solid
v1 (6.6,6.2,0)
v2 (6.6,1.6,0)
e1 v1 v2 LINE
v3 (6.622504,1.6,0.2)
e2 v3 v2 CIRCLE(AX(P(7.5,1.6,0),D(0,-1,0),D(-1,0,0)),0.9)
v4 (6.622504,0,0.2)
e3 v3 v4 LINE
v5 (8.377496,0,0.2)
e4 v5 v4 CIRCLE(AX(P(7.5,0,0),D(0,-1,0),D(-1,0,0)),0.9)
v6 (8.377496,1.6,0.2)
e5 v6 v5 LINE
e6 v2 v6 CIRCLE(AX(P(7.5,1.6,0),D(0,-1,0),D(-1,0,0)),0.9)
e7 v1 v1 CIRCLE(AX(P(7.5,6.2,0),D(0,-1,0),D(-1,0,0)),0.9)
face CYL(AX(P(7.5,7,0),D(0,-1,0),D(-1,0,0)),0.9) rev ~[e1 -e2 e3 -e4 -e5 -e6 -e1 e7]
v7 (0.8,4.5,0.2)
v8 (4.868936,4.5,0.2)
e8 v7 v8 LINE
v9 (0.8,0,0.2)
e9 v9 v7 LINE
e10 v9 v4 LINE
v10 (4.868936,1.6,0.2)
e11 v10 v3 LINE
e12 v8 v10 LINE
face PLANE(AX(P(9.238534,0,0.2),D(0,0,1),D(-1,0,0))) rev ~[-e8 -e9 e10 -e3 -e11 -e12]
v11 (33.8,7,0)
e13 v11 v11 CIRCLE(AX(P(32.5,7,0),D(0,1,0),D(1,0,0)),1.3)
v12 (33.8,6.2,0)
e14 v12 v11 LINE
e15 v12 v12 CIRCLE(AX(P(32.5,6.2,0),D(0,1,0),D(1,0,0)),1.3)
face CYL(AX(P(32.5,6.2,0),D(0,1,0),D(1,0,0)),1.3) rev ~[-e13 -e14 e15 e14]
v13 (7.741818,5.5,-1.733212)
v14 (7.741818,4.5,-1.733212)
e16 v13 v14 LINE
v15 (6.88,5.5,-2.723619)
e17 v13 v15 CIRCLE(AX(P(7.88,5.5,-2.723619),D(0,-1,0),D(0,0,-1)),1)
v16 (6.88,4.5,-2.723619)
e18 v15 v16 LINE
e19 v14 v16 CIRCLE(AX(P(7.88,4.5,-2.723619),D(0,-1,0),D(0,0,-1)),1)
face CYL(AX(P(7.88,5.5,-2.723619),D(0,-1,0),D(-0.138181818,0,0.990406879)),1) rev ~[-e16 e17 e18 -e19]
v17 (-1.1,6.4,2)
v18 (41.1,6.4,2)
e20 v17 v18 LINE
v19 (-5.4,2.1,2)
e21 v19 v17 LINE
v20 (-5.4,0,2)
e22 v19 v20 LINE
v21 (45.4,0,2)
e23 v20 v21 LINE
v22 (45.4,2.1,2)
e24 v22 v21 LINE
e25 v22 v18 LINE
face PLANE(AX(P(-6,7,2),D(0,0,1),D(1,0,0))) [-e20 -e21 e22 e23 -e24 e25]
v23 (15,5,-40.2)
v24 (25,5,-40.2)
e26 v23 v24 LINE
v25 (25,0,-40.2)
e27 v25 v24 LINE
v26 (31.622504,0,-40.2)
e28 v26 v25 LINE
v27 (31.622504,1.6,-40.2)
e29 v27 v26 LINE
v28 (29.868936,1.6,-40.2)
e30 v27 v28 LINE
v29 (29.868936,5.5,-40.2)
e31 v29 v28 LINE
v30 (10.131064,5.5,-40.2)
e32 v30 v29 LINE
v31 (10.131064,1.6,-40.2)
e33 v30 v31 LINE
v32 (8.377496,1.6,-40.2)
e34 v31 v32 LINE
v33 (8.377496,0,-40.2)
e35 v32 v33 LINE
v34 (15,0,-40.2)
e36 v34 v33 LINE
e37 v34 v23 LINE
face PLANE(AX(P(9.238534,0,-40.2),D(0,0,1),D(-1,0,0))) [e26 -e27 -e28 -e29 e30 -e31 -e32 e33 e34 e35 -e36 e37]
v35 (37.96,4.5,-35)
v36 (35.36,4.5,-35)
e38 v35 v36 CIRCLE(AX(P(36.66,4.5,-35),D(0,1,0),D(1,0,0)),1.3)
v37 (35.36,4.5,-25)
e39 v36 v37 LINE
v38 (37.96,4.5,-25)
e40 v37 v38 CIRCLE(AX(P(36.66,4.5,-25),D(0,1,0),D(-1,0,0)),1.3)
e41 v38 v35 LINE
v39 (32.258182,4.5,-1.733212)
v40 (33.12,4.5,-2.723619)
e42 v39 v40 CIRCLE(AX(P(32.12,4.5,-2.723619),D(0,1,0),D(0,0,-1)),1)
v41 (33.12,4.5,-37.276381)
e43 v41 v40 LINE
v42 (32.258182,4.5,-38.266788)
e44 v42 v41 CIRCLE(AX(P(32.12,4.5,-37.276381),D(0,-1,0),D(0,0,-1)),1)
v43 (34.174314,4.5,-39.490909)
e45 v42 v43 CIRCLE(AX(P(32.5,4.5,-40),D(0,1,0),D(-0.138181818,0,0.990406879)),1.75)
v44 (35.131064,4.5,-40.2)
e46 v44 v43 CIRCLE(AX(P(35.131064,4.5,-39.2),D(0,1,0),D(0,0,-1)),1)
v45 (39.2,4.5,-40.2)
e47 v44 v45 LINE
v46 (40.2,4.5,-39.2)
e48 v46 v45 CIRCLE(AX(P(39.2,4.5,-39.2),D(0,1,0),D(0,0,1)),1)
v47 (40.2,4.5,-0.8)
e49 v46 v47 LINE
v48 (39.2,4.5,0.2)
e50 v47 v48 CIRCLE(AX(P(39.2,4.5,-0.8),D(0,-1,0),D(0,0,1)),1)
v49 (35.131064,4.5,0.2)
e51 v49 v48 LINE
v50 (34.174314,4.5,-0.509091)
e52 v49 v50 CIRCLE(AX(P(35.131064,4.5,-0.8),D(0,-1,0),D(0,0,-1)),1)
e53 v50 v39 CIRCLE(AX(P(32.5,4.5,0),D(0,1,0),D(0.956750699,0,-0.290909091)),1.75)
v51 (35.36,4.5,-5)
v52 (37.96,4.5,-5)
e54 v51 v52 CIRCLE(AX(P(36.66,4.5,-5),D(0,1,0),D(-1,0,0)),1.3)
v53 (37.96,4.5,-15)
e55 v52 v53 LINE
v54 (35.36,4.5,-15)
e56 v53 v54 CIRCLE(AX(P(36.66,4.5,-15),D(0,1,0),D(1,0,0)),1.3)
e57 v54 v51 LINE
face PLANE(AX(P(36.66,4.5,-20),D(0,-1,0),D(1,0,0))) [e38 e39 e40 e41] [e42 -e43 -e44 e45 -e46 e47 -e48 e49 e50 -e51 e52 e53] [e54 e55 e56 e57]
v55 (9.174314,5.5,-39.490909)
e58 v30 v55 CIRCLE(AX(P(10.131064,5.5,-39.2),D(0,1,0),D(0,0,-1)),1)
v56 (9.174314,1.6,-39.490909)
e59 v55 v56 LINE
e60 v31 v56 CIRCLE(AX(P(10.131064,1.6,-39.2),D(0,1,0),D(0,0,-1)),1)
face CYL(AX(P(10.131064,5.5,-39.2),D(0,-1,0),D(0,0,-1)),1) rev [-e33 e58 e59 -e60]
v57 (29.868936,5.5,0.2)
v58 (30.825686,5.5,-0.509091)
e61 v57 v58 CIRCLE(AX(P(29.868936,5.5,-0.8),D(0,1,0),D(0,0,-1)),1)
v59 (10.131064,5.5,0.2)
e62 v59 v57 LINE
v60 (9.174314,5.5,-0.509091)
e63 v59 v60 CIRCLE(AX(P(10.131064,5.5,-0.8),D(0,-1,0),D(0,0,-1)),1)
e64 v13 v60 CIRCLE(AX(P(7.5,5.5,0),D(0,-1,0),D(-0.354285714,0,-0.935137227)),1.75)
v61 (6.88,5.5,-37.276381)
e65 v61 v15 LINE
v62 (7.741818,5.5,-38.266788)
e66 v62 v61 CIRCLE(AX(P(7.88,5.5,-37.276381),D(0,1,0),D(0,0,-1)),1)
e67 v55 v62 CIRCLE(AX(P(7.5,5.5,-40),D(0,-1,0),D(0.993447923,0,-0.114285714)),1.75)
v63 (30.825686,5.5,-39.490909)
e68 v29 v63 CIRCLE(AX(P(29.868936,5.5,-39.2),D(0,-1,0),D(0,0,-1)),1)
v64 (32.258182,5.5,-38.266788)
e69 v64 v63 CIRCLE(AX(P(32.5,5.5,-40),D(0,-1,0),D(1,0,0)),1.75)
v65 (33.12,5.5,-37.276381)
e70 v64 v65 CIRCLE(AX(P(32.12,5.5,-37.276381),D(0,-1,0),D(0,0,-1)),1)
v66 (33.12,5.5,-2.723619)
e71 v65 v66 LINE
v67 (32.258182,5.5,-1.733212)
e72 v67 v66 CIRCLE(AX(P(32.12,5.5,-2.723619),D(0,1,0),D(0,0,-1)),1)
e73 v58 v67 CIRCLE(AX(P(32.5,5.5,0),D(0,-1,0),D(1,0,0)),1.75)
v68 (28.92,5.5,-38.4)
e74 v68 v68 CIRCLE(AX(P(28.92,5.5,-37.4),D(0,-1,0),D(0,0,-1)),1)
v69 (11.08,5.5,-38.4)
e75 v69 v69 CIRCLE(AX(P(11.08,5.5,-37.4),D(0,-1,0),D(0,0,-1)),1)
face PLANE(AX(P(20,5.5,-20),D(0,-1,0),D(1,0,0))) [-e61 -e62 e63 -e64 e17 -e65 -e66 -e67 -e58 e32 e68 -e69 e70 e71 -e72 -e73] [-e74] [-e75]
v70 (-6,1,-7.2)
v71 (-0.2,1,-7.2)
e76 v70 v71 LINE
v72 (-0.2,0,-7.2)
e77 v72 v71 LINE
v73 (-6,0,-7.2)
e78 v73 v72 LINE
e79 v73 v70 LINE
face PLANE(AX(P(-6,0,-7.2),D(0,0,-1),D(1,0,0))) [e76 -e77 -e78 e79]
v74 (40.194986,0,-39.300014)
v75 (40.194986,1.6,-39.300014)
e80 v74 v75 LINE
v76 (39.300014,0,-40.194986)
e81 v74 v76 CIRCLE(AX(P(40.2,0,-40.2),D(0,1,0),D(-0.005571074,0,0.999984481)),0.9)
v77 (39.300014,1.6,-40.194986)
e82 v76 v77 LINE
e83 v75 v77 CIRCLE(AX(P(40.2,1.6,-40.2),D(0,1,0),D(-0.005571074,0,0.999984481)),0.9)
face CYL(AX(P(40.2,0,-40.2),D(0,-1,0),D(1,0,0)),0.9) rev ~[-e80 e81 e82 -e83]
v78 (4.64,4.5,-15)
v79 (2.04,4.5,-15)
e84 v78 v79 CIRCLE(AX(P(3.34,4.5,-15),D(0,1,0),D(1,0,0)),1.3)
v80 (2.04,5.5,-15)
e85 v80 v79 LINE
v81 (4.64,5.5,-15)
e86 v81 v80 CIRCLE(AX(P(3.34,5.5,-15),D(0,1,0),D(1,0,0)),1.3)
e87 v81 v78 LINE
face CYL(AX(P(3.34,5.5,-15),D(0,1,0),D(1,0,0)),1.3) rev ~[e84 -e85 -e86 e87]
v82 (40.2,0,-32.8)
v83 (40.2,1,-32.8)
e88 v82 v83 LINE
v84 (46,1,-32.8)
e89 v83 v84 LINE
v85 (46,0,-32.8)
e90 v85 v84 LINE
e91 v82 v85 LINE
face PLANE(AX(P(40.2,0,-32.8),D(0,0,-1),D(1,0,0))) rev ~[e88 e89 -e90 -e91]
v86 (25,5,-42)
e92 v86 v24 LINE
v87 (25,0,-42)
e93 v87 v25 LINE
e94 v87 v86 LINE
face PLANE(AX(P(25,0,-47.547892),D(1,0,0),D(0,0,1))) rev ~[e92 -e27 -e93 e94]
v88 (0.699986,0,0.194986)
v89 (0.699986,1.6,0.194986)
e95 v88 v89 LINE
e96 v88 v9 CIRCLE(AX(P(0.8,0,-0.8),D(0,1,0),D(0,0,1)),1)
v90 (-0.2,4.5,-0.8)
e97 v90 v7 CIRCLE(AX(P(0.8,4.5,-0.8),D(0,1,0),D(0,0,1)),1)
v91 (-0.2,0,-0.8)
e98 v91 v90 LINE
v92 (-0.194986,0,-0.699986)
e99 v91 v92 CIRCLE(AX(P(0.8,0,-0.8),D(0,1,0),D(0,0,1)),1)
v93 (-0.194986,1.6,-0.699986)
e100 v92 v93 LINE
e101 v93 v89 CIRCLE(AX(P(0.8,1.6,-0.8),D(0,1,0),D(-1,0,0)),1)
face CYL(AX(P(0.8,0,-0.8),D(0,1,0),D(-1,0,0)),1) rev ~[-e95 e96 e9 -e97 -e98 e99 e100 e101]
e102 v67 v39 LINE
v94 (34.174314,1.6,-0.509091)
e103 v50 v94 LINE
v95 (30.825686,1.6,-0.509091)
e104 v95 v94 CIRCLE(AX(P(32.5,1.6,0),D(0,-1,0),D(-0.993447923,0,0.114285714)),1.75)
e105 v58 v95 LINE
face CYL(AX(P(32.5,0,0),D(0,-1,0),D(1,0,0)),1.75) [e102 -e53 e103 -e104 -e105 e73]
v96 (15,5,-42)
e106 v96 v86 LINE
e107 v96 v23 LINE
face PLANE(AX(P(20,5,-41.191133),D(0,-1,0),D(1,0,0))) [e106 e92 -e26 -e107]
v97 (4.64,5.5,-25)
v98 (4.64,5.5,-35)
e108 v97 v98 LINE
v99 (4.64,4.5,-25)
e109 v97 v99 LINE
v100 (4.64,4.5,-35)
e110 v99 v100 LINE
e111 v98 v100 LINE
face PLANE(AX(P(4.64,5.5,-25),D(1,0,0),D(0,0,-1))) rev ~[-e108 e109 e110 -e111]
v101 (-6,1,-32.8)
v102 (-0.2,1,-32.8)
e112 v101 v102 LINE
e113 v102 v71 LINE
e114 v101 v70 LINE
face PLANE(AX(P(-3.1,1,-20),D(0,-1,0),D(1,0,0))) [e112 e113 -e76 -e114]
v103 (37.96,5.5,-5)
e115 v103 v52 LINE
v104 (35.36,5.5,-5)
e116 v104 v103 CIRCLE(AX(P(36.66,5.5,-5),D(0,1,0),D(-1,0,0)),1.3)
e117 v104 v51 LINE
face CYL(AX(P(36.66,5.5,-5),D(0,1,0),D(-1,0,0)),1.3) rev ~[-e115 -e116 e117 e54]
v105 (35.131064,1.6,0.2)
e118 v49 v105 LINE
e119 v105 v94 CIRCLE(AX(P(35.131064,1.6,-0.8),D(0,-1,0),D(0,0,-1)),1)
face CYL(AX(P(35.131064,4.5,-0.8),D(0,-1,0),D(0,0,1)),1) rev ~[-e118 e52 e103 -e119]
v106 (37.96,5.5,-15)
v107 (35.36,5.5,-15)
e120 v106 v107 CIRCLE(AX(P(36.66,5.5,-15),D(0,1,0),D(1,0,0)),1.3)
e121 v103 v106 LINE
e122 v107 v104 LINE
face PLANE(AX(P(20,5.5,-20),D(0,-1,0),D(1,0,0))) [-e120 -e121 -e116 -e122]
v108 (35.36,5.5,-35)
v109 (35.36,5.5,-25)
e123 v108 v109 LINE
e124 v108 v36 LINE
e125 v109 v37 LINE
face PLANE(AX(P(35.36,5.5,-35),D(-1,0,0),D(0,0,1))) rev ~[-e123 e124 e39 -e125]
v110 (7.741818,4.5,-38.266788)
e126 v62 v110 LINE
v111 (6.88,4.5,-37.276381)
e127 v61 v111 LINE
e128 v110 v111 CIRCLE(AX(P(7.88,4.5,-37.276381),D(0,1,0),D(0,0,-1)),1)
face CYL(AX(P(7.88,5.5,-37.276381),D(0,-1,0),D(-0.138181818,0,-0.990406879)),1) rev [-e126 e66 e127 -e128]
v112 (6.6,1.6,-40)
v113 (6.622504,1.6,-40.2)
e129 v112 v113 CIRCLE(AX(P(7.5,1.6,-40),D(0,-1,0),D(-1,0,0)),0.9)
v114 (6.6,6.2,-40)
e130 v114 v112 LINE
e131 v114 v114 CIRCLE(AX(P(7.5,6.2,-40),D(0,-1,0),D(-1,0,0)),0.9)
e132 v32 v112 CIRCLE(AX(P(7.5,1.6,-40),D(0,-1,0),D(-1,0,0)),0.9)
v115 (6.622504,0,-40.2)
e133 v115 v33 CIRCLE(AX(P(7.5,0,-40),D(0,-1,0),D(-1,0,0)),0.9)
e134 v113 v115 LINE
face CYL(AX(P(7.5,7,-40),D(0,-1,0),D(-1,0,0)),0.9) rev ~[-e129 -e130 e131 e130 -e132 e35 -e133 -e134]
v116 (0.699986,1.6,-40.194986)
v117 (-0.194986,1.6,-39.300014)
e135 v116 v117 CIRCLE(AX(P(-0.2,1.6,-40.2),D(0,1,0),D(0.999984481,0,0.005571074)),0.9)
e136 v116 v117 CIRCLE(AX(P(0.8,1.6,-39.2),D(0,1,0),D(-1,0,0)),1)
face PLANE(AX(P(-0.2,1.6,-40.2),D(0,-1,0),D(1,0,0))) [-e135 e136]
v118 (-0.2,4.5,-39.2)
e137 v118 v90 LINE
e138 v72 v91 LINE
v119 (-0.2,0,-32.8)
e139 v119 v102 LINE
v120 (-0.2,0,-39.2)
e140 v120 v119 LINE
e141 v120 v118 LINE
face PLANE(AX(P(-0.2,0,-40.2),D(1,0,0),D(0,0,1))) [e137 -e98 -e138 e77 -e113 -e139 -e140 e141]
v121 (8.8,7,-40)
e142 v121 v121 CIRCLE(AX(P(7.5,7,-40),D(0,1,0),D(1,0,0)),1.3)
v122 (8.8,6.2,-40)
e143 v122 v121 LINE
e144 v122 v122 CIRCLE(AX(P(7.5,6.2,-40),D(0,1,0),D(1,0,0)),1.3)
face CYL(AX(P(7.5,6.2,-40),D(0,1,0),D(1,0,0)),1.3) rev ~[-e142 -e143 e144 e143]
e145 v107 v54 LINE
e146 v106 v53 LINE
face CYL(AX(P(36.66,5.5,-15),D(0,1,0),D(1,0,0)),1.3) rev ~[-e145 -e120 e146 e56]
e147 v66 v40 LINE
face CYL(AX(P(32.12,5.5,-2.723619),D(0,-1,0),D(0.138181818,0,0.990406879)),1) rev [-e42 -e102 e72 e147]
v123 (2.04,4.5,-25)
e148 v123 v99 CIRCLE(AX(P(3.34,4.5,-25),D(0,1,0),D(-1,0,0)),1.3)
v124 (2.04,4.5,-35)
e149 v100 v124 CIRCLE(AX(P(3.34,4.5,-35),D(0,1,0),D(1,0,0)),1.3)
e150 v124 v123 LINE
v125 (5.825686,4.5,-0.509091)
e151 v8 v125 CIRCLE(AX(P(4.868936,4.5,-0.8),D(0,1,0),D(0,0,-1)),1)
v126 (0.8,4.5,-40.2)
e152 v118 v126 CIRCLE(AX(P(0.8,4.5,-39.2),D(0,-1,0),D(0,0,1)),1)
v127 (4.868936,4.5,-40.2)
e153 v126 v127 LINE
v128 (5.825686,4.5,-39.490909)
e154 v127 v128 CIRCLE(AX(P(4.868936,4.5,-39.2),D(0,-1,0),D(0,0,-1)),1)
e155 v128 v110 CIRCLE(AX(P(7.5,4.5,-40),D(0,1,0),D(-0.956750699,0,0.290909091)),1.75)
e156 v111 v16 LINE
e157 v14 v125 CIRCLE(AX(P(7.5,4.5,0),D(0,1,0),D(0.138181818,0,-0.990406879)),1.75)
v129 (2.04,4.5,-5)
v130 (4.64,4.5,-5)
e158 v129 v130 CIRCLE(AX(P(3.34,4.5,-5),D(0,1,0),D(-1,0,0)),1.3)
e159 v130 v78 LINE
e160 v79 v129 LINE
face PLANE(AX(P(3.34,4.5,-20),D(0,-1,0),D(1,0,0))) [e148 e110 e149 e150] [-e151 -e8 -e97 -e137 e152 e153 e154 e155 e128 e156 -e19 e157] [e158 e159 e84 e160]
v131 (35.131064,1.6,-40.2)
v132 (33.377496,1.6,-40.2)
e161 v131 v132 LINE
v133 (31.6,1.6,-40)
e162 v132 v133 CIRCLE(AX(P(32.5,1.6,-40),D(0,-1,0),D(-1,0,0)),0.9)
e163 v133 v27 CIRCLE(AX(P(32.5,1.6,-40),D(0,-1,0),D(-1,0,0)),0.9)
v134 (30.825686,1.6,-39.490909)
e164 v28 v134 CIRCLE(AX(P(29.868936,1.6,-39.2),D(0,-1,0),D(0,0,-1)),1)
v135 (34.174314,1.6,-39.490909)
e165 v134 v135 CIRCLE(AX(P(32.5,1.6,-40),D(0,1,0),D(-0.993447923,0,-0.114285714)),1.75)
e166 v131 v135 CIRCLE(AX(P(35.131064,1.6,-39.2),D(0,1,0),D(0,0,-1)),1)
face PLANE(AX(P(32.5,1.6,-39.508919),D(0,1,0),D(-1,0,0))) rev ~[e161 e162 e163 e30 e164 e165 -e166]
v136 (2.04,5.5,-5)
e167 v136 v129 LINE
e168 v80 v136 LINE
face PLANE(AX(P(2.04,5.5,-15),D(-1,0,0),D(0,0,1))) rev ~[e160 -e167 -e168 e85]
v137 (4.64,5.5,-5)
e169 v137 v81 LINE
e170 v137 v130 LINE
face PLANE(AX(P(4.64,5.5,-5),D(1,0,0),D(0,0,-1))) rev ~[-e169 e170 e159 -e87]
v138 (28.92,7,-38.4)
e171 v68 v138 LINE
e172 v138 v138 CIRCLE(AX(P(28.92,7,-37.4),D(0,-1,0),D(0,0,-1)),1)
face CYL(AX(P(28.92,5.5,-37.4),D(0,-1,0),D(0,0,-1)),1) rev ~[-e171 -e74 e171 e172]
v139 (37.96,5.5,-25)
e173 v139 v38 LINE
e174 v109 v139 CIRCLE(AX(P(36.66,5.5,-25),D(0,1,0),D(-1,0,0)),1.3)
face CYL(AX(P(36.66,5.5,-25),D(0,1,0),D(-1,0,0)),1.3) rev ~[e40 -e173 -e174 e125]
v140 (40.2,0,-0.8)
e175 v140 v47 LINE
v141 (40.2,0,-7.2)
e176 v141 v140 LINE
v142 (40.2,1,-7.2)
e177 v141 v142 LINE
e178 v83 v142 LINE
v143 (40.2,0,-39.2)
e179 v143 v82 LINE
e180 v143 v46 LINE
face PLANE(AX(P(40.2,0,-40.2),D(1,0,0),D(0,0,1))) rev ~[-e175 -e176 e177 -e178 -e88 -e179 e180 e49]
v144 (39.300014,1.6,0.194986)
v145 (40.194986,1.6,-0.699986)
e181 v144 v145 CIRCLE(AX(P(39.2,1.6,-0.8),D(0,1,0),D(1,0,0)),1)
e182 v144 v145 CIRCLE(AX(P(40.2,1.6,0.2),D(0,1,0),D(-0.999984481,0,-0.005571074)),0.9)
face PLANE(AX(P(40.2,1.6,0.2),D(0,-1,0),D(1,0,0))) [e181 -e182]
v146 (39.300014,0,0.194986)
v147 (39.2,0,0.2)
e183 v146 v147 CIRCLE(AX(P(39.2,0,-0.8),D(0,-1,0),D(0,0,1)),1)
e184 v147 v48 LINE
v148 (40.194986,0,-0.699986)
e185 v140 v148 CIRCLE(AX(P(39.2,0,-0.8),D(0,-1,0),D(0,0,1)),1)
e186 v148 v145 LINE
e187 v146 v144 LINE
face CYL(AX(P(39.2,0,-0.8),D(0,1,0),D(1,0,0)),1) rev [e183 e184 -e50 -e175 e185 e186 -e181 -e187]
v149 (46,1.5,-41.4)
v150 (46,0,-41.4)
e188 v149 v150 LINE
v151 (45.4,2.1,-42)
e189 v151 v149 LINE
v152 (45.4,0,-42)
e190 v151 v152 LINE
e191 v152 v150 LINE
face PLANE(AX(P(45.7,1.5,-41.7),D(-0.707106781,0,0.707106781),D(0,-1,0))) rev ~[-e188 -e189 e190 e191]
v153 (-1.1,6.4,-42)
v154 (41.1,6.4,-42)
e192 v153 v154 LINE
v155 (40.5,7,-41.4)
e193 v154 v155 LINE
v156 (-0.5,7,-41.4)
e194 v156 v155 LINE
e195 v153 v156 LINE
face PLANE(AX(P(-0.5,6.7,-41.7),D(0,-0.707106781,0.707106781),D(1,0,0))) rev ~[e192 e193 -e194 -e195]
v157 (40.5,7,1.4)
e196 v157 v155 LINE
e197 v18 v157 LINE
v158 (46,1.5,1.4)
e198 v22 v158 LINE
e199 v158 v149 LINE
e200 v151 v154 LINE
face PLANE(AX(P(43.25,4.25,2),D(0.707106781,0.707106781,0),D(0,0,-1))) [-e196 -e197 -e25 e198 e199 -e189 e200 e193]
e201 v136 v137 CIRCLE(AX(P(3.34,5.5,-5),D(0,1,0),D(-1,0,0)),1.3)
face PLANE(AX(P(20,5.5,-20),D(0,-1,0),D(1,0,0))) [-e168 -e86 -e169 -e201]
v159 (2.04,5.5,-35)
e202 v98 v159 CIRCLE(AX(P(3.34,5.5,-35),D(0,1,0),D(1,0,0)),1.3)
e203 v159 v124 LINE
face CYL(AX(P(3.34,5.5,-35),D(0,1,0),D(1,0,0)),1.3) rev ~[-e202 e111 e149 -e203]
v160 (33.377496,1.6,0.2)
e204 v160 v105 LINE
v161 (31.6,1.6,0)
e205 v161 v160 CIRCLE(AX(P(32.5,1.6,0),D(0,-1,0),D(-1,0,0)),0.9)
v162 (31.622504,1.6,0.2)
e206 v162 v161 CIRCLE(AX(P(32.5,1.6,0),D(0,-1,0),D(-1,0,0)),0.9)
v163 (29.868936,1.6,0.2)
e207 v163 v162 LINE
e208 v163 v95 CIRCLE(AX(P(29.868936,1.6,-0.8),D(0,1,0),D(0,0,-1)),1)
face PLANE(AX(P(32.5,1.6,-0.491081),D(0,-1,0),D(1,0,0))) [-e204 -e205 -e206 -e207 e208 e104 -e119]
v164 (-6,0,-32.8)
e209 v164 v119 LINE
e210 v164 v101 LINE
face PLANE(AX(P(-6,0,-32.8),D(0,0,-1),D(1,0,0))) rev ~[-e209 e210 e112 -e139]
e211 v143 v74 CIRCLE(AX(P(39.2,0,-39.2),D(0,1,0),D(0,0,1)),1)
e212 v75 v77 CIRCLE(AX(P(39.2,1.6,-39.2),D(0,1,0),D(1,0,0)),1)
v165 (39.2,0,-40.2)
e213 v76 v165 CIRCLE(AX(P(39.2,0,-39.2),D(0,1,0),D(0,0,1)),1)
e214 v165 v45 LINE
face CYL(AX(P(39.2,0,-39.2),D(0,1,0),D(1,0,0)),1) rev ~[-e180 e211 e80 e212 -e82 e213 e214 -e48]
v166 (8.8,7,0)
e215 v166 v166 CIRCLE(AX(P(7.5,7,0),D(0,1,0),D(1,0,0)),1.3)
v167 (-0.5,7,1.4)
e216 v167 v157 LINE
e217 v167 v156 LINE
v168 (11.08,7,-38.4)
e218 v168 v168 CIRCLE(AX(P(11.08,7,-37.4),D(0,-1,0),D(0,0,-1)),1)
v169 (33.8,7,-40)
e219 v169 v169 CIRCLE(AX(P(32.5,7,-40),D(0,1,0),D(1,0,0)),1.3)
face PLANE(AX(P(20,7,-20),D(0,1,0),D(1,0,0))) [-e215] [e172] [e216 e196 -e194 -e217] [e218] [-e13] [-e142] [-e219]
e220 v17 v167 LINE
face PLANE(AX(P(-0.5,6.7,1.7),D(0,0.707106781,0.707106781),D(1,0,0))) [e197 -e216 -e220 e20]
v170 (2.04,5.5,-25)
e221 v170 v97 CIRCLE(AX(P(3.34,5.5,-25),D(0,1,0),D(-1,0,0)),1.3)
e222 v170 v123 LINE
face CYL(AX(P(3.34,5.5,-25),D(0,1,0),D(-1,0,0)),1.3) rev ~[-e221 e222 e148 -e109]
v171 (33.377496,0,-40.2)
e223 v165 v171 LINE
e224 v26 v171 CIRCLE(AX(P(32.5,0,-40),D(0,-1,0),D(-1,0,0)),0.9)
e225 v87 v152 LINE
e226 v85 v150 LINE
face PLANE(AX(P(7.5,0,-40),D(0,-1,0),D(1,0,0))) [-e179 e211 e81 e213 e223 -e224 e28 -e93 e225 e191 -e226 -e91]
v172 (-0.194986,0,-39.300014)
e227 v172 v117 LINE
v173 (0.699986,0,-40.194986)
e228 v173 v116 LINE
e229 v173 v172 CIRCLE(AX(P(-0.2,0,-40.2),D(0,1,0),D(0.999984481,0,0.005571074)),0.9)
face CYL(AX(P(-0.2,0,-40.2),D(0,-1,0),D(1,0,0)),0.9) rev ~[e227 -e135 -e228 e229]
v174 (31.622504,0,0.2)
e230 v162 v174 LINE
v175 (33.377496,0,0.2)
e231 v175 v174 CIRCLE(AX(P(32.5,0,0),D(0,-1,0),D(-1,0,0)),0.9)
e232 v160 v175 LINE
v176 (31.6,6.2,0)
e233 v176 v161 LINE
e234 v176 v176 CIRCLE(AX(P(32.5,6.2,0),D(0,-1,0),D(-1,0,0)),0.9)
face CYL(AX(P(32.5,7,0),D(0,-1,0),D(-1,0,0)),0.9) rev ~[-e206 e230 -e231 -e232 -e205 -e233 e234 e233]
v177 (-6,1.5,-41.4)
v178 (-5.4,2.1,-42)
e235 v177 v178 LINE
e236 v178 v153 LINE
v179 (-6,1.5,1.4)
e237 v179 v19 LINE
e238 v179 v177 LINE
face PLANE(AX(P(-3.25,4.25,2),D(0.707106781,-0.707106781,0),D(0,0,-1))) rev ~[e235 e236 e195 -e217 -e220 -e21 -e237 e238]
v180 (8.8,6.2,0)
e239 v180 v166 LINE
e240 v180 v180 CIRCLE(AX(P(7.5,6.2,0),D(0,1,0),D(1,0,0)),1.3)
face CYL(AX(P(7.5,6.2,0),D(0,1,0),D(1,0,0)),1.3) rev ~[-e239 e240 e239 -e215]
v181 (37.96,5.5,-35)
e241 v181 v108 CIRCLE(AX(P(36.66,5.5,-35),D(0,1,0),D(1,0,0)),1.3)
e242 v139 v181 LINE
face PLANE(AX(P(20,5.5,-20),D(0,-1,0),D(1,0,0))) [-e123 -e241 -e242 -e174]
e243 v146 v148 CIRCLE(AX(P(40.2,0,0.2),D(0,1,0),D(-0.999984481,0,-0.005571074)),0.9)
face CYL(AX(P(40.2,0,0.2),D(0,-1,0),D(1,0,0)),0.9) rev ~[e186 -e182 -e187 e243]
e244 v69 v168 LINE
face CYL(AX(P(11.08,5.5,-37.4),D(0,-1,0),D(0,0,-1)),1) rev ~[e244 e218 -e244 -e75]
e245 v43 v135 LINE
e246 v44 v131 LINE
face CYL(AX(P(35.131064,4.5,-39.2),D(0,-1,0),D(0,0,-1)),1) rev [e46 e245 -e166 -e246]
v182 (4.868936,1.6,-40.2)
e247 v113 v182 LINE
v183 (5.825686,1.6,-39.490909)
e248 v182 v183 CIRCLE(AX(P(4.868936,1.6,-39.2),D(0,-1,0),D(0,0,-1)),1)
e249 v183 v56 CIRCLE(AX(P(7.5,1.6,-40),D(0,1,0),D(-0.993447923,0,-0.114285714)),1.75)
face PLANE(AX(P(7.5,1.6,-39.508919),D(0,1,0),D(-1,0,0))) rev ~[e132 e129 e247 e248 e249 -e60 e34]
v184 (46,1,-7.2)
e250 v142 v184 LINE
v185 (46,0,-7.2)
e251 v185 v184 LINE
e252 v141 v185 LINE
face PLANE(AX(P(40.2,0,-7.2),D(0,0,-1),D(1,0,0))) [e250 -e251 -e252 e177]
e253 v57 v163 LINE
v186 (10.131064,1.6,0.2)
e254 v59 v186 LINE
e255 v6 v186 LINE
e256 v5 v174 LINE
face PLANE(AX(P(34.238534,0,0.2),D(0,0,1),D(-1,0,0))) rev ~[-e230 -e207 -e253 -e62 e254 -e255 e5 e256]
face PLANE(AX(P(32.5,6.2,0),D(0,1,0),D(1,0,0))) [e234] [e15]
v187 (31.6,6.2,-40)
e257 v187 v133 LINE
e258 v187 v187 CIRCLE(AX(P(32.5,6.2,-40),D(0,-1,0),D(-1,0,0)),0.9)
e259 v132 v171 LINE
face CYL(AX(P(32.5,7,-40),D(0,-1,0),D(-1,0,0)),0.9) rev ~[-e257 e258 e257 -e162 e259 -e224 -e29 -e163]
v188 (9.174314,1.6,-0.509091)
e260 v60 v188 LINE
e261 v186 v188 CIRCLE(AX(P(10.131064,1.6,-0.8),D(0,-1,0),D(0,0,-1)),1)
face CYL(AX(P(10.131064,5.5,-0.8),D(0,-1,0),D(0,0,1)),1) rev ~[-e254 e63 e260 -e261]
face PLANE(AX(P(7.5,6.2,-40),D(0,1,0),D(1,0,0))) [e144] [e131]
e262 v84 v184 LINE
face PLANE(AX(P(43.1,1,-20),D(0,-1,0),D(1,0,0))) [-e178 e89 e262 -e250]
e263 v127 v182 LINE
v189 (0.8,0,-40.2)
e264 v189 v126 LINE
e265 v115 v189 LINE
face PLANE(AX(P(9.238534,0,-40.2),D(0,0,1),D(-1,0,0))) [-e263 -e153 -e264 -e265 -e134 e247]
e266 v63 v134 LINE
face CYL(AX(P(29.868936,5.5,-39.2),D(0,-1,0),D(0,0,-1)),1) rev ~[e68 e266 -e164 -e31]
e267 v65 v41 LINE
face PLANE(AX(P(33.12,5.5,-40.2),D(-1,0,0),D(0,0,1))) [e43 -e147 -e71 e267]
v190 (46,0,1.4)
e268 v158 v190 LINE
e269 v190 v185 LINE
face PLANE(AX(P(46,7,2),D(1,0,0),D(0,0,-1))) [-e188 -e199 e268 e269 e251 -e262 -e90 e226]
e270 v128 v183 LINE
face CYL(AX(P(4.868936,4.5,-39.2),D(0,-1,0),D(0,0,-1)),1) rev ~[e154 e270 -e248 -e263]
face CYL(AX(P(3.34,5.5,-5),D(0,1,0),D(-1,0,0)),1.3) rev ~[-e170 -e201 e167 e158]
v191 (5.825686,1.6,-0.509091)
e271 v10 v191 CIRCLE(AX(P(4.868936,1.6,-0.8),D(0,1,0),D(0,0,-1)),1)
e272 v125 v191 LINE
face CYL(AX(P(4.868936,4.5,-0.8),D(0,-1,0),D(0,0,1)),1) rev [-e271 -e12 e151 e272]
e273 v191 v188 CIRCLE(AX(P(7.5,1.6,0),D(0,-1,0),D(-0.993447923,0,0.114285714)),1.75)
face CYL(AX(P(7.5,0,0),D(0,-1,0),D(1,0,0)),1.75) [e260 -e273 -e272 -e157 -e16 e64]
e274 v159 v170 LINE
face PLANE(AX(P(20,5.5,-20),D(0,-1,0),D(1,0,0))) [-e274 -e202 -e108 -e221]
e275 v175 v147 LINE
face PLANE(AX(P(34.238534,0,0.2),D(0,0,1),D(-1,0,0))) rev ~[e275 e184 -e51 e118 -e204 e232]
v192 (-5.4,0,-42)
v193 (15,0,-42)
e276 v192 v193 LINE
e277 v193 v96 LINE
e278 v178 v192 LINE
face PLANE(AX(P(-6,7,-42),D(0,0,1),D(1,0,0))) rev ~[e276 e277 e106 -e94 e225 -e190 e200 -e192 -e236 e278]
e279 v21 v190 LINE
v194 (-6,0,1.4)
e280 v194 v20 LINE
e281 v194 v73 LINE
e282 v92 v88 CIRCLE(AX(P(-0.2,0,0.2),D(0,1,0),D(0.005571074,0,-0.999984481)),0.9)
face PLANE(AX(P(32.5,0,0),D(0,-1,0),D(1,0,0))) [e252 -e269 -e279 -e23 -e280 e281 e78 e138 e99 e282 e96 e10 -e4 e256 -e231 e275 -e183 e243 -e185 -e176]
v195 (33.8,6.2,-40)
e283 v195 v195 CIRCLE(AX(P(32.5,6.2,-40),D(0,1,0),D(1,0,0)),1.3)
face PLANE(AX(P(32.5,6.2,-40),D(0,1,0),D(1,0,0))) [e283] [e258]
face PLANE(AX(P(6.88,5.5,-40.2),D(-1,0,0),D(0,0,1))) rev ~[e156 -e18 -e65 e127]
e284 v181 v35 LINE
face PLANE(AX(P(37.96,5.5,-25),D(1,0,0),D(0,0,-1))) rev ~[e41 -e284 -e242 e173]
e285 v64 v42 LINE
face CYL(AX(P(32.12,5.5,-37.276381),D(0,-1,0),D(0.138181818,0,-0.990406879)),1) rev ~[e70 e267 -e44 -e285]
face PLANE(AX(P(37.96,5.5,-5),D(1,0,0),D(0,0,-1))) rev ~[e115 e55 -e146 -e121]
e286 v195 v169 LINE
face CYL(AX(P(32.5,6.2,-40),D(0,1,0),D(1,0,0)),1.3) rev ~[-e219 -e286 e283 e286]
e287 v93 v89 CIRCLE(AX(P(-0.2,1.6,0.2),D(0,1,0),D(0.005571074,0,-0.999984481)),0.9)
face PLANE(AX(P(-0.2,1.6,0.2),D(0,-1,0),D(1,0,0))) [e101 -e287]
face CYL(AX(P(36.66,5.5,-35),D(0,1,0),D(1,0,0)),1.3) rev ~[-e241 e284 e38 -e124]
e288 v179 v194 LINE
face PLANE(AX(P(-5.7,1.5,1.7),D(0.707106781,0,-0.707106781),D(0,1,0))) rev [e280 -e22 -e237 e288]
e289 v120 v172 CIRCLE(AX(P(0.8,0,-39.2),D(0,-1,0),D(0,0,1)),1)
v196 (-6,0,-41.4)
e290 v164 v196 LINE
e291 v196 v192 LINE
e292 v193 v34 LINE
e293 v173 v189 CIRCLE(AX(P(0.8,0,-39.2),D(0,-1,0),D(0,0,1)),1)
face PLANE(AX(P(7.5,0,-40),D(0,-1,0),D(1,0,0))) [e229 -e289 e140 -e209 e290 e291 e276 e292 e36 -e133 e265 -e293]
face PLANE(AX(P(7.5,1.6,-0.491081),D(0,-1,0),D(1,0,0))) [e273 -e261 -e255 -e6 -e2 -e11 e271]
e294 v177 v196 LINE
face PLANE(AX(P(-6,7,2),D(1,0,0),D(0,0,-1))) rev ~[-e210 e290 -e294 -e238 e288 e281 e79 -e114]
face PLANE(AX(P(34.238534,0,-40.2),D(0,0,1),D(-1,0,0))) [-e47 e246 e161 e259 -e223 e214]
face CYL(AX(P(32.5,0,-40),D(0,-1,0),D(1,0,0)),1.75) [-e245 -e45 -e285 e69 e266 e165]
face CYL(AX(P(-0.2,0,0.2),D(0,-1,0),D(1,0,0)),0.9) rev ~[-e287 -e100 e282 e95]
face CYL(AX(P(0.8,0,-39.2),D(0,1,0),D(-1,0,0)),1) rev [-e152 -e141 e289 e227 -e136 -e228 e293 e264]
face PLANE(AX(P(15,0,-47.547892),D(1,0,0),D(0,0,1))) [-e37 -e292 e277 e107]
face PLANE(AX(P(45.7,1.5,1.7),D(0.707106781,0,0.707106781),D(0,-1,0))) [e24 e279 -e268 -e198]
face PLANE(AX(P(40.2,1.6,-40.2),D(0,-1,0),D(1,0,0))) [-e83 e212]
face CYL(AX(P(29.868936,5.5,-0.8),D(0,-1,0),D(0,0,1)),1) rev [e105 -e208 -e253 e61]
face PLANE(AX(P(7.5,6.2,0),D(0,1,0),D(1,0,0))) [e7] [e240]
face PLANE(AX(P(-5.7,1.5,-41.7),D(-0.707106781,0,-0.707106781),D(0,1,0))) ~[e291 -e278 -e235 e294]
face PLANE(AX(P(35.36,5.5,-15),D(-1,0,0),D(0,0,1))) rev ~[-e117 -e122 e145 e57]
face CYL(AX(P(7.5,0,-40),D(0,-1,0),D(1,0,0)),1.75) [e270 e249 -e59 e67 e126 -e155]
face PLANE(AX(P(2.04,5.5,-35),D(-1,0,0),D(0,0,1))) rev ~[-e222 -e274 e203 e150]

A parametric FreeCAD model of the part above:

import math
import FreeCAD as App
import Part
import Sketcher

V = App.Vector
Q = App.Units.Quantity


def edges_at(feature, points):
    """Names of the edges that pass closest to the given points."""
    edges = feature.Shape.Edges
    near = lambda p: min(range(len(edges)), key=lambda i: edges[i].distToShape(Part.Vertex(*p))[0])
    return sorted({f"Edge{near(p) + 1}" for p in points})

doc = App.newDocument("Part")
body = doc.addObject("PartDesign::Body", "Body")

sketch1 = body.newObject("Sketcher::SketchObject", "Sketch")
sketch1.AttachmentSupport = (doc.getObject("XZ_Plane"), [""])
sketch1.MapMode = "FlatFace"
sketch1.AttachmentOffset = App.Placement(V(0, 0, -7), App.Rotation())
sketch1.addGeometry([
    Part.LineSegment(V(-6, -42, 0), V(-6, 2, 0)),
    Part.LineSegment(V(-6, 2, 0), V(46, 2, 0)),
    Part.LineSegment(V(46, 2, 0), V(46, -42, 0)),
    Part.LineSegment(V(46, -42, 0), V(-6, -42, 0)),
], False)
sketch1.addConstraint([
    Sketcher.Constraint("Coincident", 0, 2, 1, 1),
    Sketcher.Constraint("Coincident", 1, 2, 2, 1),
    Sketcher.Constraint("Coincident", 2, 2, 3, 1),
    Sketcher.Constraint("Coincident", 3, 2, 0, 1),
    Sketcher.Constraint("Vertical", 0),
    Sketcher.Constraint("Horizontal", 1),
    Sketcher.Constraint("Vertical", 2),
    Sketcher.Constraint("Horizontal", 3),
    Sketcher.Constraint("DistanceX", 1, 1, 1, 2, Q("52 mm")),
    Sketcher.Constraint("DistanceY", 0, 1, 0, 2, Q("44 mm")),
    Sketcher.Constraint("DistanceX", 0, 2, -1, 1, Q("6 mm")),
    Sketcher.Constraint("DistanceY", -1, 1, 0, 2, Q("2 mm")),
])
pad1 = body.newObject("PartDesign::Pad", "Pad")
pad1.Profile = sketch1
pad1.Length = 7

sketch2 = body.newObject("Sketcher::SketchObject", "Sketch001")
sketch2.AttachmentSupport = (doc.getObject("XZ_Plane"), [""])
sketch2.MapMode = "FlatFace"
sketch2.addGeometry([
    Part.LineSegment(V(-0.2, 0.2, 0), V(-0.2, -40.2, 0)),
    Part.LineSegment(V(-0.2, -40.2, 0), V(40.2, -40.2, 0)),
    Part.LineSegment(V(40.2, -40.2, 0), V(40.2, 0.2, 0)),
    Part.LineSegment(V(40.2, 0.2, 0), V(-0.2, 0.2, 0)),
], False)
sketch2.addConstraint([
    Sketcher.Constraint("Coincident", 0, 2, 1, 1),
    Sketcher.Constraint("Coincident", 1, 2, 2, 1),
    Sketcher.Constraint("Coincident", 2, 2, 3, 1),
    Sketcher.Constraint("Coincident", 3, 2, 0, 1),
    Sketcher.Constraint("Vertical", 0),
    Sketcher.Constraint("Horizontal", 1),
    Sketcher.Constraint("Vertical", 2),
    Sketcher.Constraint("Horizontal", 3),
    Sketcher.Constraint("Equal", 3, 0),
    Sketcher.Constraint("DistanceX", 1, 1, 1, 2, Q("40.4 mm")),
    Sketcher.Constraint("DistanceX", 0, 2, -1, 1, Q("0.2 mm")),
    Sketcher.Constraint("DistanceY", 0, 2, -1, 1, Q("40.2 mm")),
])
pocket1 = body.newObject("PartDesign::Pocket", "Pocket")
pocket1.Profile = sketch2
pocket1.Length = 5.5

sketch3 = body.newObject("Sketcher::SketchObject", "Sketch002")
sketch3.AttachmentSupport = (doc.getObject("XZ_Plane"), [""])
sketch3.MapMode = "FlatFace"
sketch3.AttachmentOffset = App.Placement(V(0, 0, -5.5), App.Rotation())
sketch3.addGeometry([
    Part.LineSegment(V(-0.2, 0.2, 0), V(-0.2, -40.2, 0)),
    Part.LineSegment(V(-0.2, -40.2, 0), V(6.88, -40.2, 0)),
    Part.LineSegment(V(6.88, -40.2, 0), V(6.88, 0.2, 0)),
    Part.LineSegment(V(6.88, 0.2, 0), V(-0.2, 0.2, 0)),
    Part.ArcOfCircle(Part.Circle(V(3.34, -25, 0), V(0, 0, 1), 1.3), math.radians(0), math.radians(180)),
    Part.LineSegment(V(4.64, -25, 0), V(4.64, -35, 0)),
    Part.ArcOfCircle(Part.Circle(V(3.34, -35, 0), V(0, 0, 1), 1.3), math.radians(180), math.radians(360)),
    Part.LineSegment(V(2.04, -35, 0), V(2.04, -25, 0)),
    Part.ArcOfCircle(Part.Circle(V(3.34, -5, 0), V(0, 0, 1), 1.3), math.radians(0), math.radians(180)),
    Part.LineSegment(V(4.64, -5, 0), V(4.64, -15, 0)),
    Part.ArcOfCircle(Part.Circle(V(3.34, -15, 0), V(0, 0, 1), 1.3), math.radians(180), math.radians(360)),
    Part.LineSegment(V(2.04, -15, 0), V(2.04, -5, 0)),
    Part.LineSegment(V(33.12, 0.2, 0), V(33.12, -40.2, 0)),
    Part.LineSegment(V(33.12, -40.2, 0), V(40.2, -40.2, 0)),
    Part.LineSegment(V(40.2, -40.2, 0), V(40.2, 0.2, 0)),
    Part.LineSegment(V(40.2, 0.2, 0), V(33.12, 0.2, 0)),
    Part.ArcOfCircle(Part.Circle(V(36.66, -35, 0), V(0, 0, 1), 1.3), math.radians(180), math.radians(360)),
    Part.LineSegment(V(35.36, -35, 0), V(35.36, -25, 0)),
    Part.ArcOfCircle(Part.Circle(V(36.66, -25, 0), V(0, 0, 1), 1.3), math.radians(0), math.radians(180)),
    Part.LineSegment(V(37.96, -25, 0), V(37.96, -35, 0)),
    Part.ArcOfCircle(Part.Circle(V(36.66, -5, 0), V(0, 0, 1), 1.3), math.radians(0), math.radians(180)),
    Part.LineSegment(V(37.96, -5, 0), V(37.96, -15, 0)),
    Part.ArcOfCircle(Part.Circle(V(36.66, -15, 0), V(0, 0, 1), 1.3), math.radians(180), math.radians(360)),
    Part.LineSegment(V(35.36, -15, 0), V(35.36, -5, 0)),
], False)
sketch3.addConstraint([
    Sketcher.Constraint("Coincident", 0, 2, 1, 1),
    Sketcher.Constraint("Coincident", 1, 2, 2, 1),
    Sketcher.Constraint("Coincident", 2, 2, 3, 1),
    Sketcher.Constraint("Coincident", 3, 2, 0, 1),
    Sketcher.Constraint("Tangent", 4, 1, 5, 1),
    Sketcher.Constraint("Tangent", 5, 2, 6, 2),
    Sketcher.Constraint("Tangent", 6, 1, 7, 1),
    Sketcher.Constraint("Tangent", 7, 2, 4, 2),
    Sketcher.Constraint("Tangent", 8, 1, 9, 1),
    Sketcher.Constraint("Tangent", 9, 2, 10, 2),
    Sketcher.Constraint("Tangent", 10, 1, 11, 1),
    Sketcher.Constraint("Tangent", 11, 2, 8, 2),
    Sketcher.Constraint("Coincident", 12, 2, 13, 1),
    Sketcher.Constraint("Coincident", 13, 2, 14, 1),
    Sketcher.Constraint("Coincident", 14, 2, 15, 1),
    Sketcher.Constraint("Coincident", 15, 2, 12, 1),
    Sketcher.Constraint("Tangent", 16, 1, 17, 1),
    Sketcher.Constraint("Tangent", 17, 2, 18, 2),
    Sketcher.Constraint("Tangent", 18, 1, 19, 1),
    Sketcher.Constraint("Tangent", 19, 2, 16, 2),
    Sketcher.Constraint("Tangent", 20, 1, 21, 1),
    Sketcher.Constraint("Tangent", 21, 2, 22, 2),
    Sketcher.Constraint("Tangent", 22, 1, 23, 1),
    Sketcher.Constraint("Tangent", 23, 2, 20, 2),
    Sketcher.Constraint("Vertical", 0),
    Sketcher.Constraint("Horizontal", 1),
    Sketcher.Constraint("Vertical", 2),
    Sketcher.Constraint("Horizontal", 3),
    Sketcher.Constraint("Vertical", 5),
    Sketcher.Constraint("Vertical", 7),
    Sketcher.Constraint("Vertical", 9),
    Sketcher.Constraint("Vertical", 11),
    Sketcher.Constraint("Vertical", 12),
    Sketcher.Constraint("Horizontal", 13),
    Sketcher.Constraint("Vertical", 14),
    Sketcher.Constraint("Horizontal", 15),
    Sketcher.Constraint("Vertical", 17),
    Sketcher.Constraint("Vertical", 19),
    Sketcher.Constraint("Vertical", 21),
    Sketcher.Constraint("Vertical", 23),
    Sketcher.Constraint("Equal", 6, 8),
    Sketcher.Constraint("Equal", 10, 16),
    Sketcher.Constraint("Equal", 18, 20),
    Sketcher.Constraint("Horizontal", 6, 3, 16, 3),
    Sketcher.Constraint("Horizontal", 4, 3, 18, 3),
    Sketcher.Constraint("Horizontal", 8, 3, 20, 3),
    Sketcher.Constraint("Horizontal", 10, 3, 22, 3),
    Sketcher.Constraint("Horizontal", 1, 2, 12, 2),
    Sketcher.Constraint("Horizontal", 3, 2, 14, 2),
    Sketcher.Constraint("Vertical", 6, 3, 8, 3),
    Sketcher.Constraint("Vertical", 18, 3, 20, 3),
    Sketcher.Constraint("Equal", 3, 13),
    Sketcher.Constraint("Equal", 7, 9),
    Sketcher.Constraint("Radius", 4, Q("1.3 mm")),
    Sketcher.Constraint("DistanceY", 5, 2, 5, 1, Q("10 mm")),
    Sketcher.Constraint("DistanceY", 0, 2, 0, 1, Q("40.4 mm")),
    Sketcher.Constraint("DistanceY", 4, 3, -1, 1, Q("25 mm")),
    Sketcher.Constraint("DistanceY", 8, 3, -1, 1, Q("5 mm")),
    Sketcher.Constraint("DistanceX", 1, 1, 1, 2, Q("7.08 mm")),
    Sketcher.Constraint("DistanceX", 0, 2, -1, 1, Q("0.2 mm")),
    Sketcher.Constraint("DistanceY", 0, 2, -1, 1, Q("40.2 mm")),
    Sketcher.Constraint("DistanceX", -1, 1, 13, 2, Q("40.2 mm")),
    Sketcher.Constraint("DistanceX", -1, 1, 4, 3, Q("3.34 mm")),
    Sketcher.Constraint("DistanceX", -1, 1, 16, 3, Q("36.66 mm")),
])
pad2 = body.newObject("PartDesign::Pad", "Pad001")
pad2.Profile = sketch3
pad2.Length = 1

sketch4 = body.newObject("Sketcher::SketchObject", "Sketch003")
sketch4.AttachmentSupport = (doc.getObject("XZ_Plane"), [""])
sketch4.MapMode = "FlatFace"
sketch4.addGeometry([
    Part.LineSegment(V(40.2, -7.2, 0), V(40.2, -32.8, 0)),
    Part.LineSegment(V(40.2, -32.8, 0), V(46, -32.8, 0)),
    Part.LineSegment(V(46, -32.8, 0), V(46, -7.2, 0)),
    Part.LineSegment(V(46, -7.2, 0), V(40.2, -7.2, 0)),
    Part.LineSegment(V(-6, -7.2, 0), V(-6, -32.8, 0)),
    Part.LineSegment(V(-6, -32.8, 0), V(-0.2, -32.8, 0)),
    Part.LineSegment(V(-0.2, -32.8, 0), V(-0.2, -7.2, 0)),
    Part.LineSegment(V(-0.2, -7.2, 0), V(-6, -7.2, 0)),
], False)
sketch4.addConstraint([
    Sketcher.Constraint("Coincident", 0, 2, 1, 1),
    Sketcher.Constraint("Coincident", 1, 2, 2, 1),
    Sketcher.Constraint("Coincident", 2, 2, 3, 1),
    Sketcher.Constraint("Coincident", 3, 2, 0, 1),
    Sketcher.Constraint("Coincident", 4, 2, 5, 1),
    Sketcher.Constraint("Coincident", 5, 2, 6, 1),
    Sketcher.Constraint("Coincident", 6, 2, 7, 1),
    Sketcher.Constraint("Coincident", 7, 2, 4, 1),
    Sketcher.Constraint("Vertical", 0),
    Sketcher.Constraint("Horizontal", 1),
    Sketcher.Constraint("Vertical", 2),
    Sketcher.Constraint("Horizontal", 3),
    Sketcher.Constraint("Vertical", 4),
    Sketcher.Constraint("Horizontal", 5),
    Sketcher.Constraint("Vertical", 6),
    Sketcher.Constraint("Horizontal", 7),
    Sketcher.Constraint("Horizontal", 1, 2, 4, 2),
    Sketcher.Constraint("Horizontal", 3, 2, 6, 2),
    Sketcher.Constraint("Equal", 3, 5),
    Sketcher.Constraint("DistanceX", 1, 1, 1, 2, Q("5.8 mm")),
    Sketcher.Constraint("DistanceY", 0, 2, 0, 1, Q("25.6 mm")),
    Sketcher.Constraint("DistanceX", -1, 1, 1, 2, Q("46 mm")),
    Sketcher.Constraint("DistanceX", 4, 2, -1, 1, Q("6 mm")),
    Sketcher.Constraint("DistanceY", 0, 2, -1, 1, Q("32.8 mm")),
])
pocket2 = body.newObject("PartDesign::Pocket", "Pocket001")
pocket2.Profile = sketch4
pocket2.Length = 1

sketch5 = body.newObject("Sketcher::SketchObject", "Sketch004")
sketch5.AttachmentSupport = (doc.getObject("XZ_Plane"), [""])
sketch5.MapMode = "FlatFace"
sketch5.AttachmentOffset = App.Placement(V(0, 0, -5.5), App.Rotation())
sketch5.addGeometry([
    Part.Circle(V(28.92, -37.4, 0), V(0, 0, 1), 1),
    Part.Circle(V(11.08, -37.4, 0), V(0, 0, 1), 1),
], False)
sketch5.addConstraint([
    Sketcher.Constraint("Equal", 0, 1),
    Sketcher.Constraint("Horizontal", 0, 3, 1, 3),
    Sketcher.Constraint("Diameter", 0, Q("2 mm")),
    Sketcher.Constraint("DistanceY", 0, 3, -1, 1, Q("37.4 mm")),
    Sketcher.Constraint("DistanceX", -1, 1, 0, 3, Q("28.92 mm")),
    Sketcher.Constraint("DistanceX", -1, 1, 1, 3, Q("11.08 mm")),
])
pocket3 = body.newObject("PartDesign::Pocket", "Pocket002")
pocket3.Profile = sketch5
pocket3.Type = "ThroughAll"

sketch6 = body.newObject("Sketcher::SketchObject", "Sketch005")
sketch6.AttachmentSupport = (doc.getObject("XZ_Plane"), [""])
sketch6.MapMode = "FlatFace"
sketch6.addGeometry(Part.Circle(V(7.5, 0, 0), V(0, 0, 1), 1.75), False)
sketch6.addConstraint([
    Sketcher.Constraint("PointOnObject", 0, 3, -1),
    Sketcher.Constraint("Diameter", 0, Q("3.5 mm")),
    Sketcher.Constraint("DistanceX", -1, 1, 0, 3, Q("7.5 mm")),
])
pad3 = body.newObject("PartDesign::Pad", "Pad002")
pad3.Profile = sketch6
pad3.Type = "UpToFirst"
pad3.Reversed = True

sketch7 = body.newObject("Sketcher::SketchObject", "Sketch006")
sketch7.AttachmentSupport = (doc.getObject("XZ_Plane"), [""])
sketch7.MapMode = "FlatFace"
sketch7.addGeometry(Part.Circle(V(32.5, 0, 0), V(0, 0, 1), 1.75), False)
sketch7.addConstraint([
    Sketcher.Constraint("PointOnObject", 0, 3, -1),
    Sketcher.Constraint("Diameter", 0, Q("3.5 mm")),
    Sketcher.Constraint("DistanceX", -1, 1, 0, 3, Q("32.5 mm")),
])
pad4 = body.newObject("PartDesign::Pad", "Pad003")
pad4.Profile = sketch7
pad4.Type = "UpToFirst"
pad4.Reversed = True

sketch8 = body.newObject("Sketcher::SketchObject", "Sketch007")
sketch8.AttachmentSupport = (doc.getObject("XZ_Plane"), [""])
sketch8.MapMode = "FlatFace"
sketch8.addGeometry(Part.Circle(V(32.5, -40, 0), V(0, 0, 1), 1.75), False)
sketch8.addConstraint([
    Sketcher.Constraint("Diameter", 0, Q("3.5 mm")),
    Sketcher.Constraint("DistanceY", 0, 3, -1, 1, Q("40 mm")),
    Sketcher.Constraint("DistanceX", -1, 1, 0, 3, Q("32.5 mm")),
])
pad5 = body.newObject("PartDesign::Pad", "Pad004")
pad5.Profile = sketch8
pad5.Type = "UpToFirst"
pad5.Reversed = True

sketch9 = body.newObject("Sketcher::SketchObject", "Sketch008")
sketch9.AttachmentSupport = (doc.getObject("XZ_Plane"), [""])
sketch9.MapMode = "FlatFace"
sketch9.addGeometry(Part.Circle(V(7.5, -40, 0), V(0, 0, 1), 1.75), False)
sketch9.addConstraint([
    Sketcher.Constraint("Diameter", 0, Q("3.5 mm")),
    Sketcher.Constraint("DistanceY", 0, 3, -1, 1, Q("40 mm")),
    Sketcher.Constraint("DistanceX", -1, 1, 0, 3, Q("7.5 mm")),
])
pad6 = body.newObject("PartDesign::Pad", "Pad005")
pad6.Profile = sketch9
pad6.Type = "UpToFirst"
pad6.Reversed = True

sketch10 = body.newObject("Sketcher::SketchObject", "Sketch009")
sketch10.AttachmentSupport = (doc.getObject("XZ_Plane"), [""])
sketch10.MapMode = "FlatFace"
sketch10.AttachmentOffset = App.Placement(V(0, 0, -7), App.Rotation())
sketch10.addGeometry([
    Part.Circle(V(7.5, 0, 0), V(0, 0, 1), 0.9),
    Part.Circle(V(32.5, 0, 0), V(0, 0, 1), 0.9),
    Part.Circle(V(7.5, -40, 0), V(0, 0, 1), 0.9),
    Part.Circle(V(32.5, -40, 0), V(0, 0, 1), 0.9),
], False)
sketch10.addConstraint([
    Sketcher.Constraint("Equal", 0, 1),
    Sketcher.Constraint("Equal", 1, 2),
    Sketcher.Constraint("Equal", 2, 3),
    Sketcher.Constraint("PointOnObject", 0, 3, -1),
    Sketcher.Constraint("PointOnObject", 1, 3, -1),
    Sketcher.Constraint("Horizontal", 2, 3, 3, 3),
    Sketcher.Constraint("Vertical", 0, 3, 2, 3),
    Sketcher.Constraint("Vertical", 1, 3, 3, 3),
    Sketcher.Constraint("Diameter", 0, Q("1.8 mm")),
    Sketcher.Constraint("DistanceY", 2, 3, -1, 1, Q("40 mm")),
    Sketcher.Constraint("DistanceX", 0, 3, 1, 3, Q("25 mm")),
    Sketcher.Constraint("DistanceX", -1, 1, 0, 3, Q("7.5 mm")),
])
doc.recompute()
hole = body.newObject("PartDesign::Hole", "Hole")
hole.Profile = sketch10
hole.ThreadType = "None"
hole.Diameter = 1.8
hole.DepthType = "ThroughAll"
hole.HoleCutType = "Counterbore"
hole.HoleCutDiameter = 2.6
hole.HoleCutDepth = 0.8
hole.Reversed = True
doc.recompute()

chamfer = body.newObject("PartDesign::Chamfer", "Chamfer")
chamfer.Base = (hole, edges_at(hole, [(46, 7, -20), (-6, 7, -20)]))
chamfer.Size = 5.5

sketch11 = body.newObject("Sketcher::SketchObject", "Sketch010")
sketch11.AttachmentSupport = (doc.getObject("XZ_Plane"), [""])
sketch11.MapMode = "FlatFace"
sketch11.addGeometry([
    Part.LineSegment(V(34.238534, 0.2, 0), V(30.761466, 0.2, 0)),
    Part.ArcOfCircle(Part.Circle(V(32.5, 0, 0), V(0, 0, 1), 1.75), math.radians(173.437572), math.radians(366.562428)),
    Part.LineSegment(V(9.238534, 0.2, 0), V(5.761466, 0.2, 0)),
    Part.ArcOfCircle(Part.Circle(V(7.5, 0, 0), V(0, 0, 1), 1.75), math.radians(173.437572), math.radians(366.562428)),
    Part.LineSegment(V(5.761466, -40.2, 0), V(9.238534, -40.2, 0)),
    Part.ArcOfCircle(Part.Circle(V(7.5, -40, 0), V(0, 0, 1), 1.75), math.radians(-6.562428), math.radians(186.562428)),
    Part.LineSegment(V(30.761466, -40.2, 0), V(34.238534, -40.2, 0)),
    Part.ArcOfCircle(Part.Circle(V(32.5, -40, 0), V(0, 0, 1), 1.75), math.radians(-6.562428), math.radians(186.562428)),
], False)
sketch11.addConstraint([
    Sketcher.Constraint("Coincident", 0, 1, 1, 2),
    Sketcher.Constraint("Coincident", 1, 1, 0, 2),
    Sketcher.Constraint("Coincident", 2, 1, 3, 2),
    Sketcher.Constraint("Coincident", 3, 1, 2, 2),
    Sketcher.Constraint("Coincident", 4, 1, 5, 2),
    Sketcher.Constraint("Coincident", 5, 1, 4, 2),
    Sketcher.Constraint("Coincident", 6, 1, 7, 2),
    Sketcher.Constraint("Coincident", 7, 1, 6, 2),
    Sketcher.Constraint("Horizontal", 0),
    Sketcher.Constraint("Horizontal", 2),
    Sketcher.Constraint("Horizontal", 4),
    Sketcher.Constraint("Horizontal", 6),
    Sketcher.Constraint("Equal", 1, 3),
    Sketcher.Constraint("Equal", 3, 5),
    Sketcher.Constraint("Equal", 5, 7),
    Sketcher.Constraint("PointOnObject", 1, 3, -1),
    Sketcher.Constraint("PointOnObject", 3, 3, -1),
    Sketcher.Constraint("Horizontal", 5, 3, 7, 3),
    Sketcher.Constraint("Horizontal", 1, 1, 2, 1),
    Sketcher.Constraint("Horizontal", 5, 1, 6, 1),
    Sketcher.Constraint("Vertical", 3, 3, 5, 3),
    Sketcher.Constraint("Vertical", 1, 3, 7, 3),
    Sketcher.Constraint("Vertical", 3, 1, 4, 1),
    Sketcher.Constraint("Radius", 1, Q("1.75 mm")),
    Sketcher.Constraint("DistanceY", 5, 3, -1, 1, Q("40 mm")),
    Sketcher.Constraint("DistanceX", 3, 3, 1, 3, Q("25 mm")),
    Sketcher.Constraint("DistanceX", -1, 1, 1, 3, Q("32.5 mm")),
    Sketcher.Constraint("DistanceY", -1, 1, 0, 1, Q("0.2 mm")),
])
pocket4 = body.newObject("PartDesign::Pocket", "Pocket003")
pocket4.Profile = sketch11
pocket4.Length = 1.6

sketch12 = body.newObject("Sketcher::SketchObject", "Sketch011")
sketch12.AttachmentSupport = (doc.getObject("XZ_Plane"), [""])
sketch12.MapMode = "FlatFace"
sketch12.addGeometry([
    Part.LineSegment(V(15, -34.834373, 0), V(15, -47.547892, 0)),
    Part.LineSegment(V(15, -47.547892, 0), V(25, -47.547892, 0)),
    Part.LineSegment(V(25, -47.547892, 0), V(25, -34.834373, 0)),
    Part.LineSegment(V(25, -34.834373, 0), V(15, -34.834373, 0)),
], False)
sketch12.addConstraint([
    Sketcher.Constraint("Coincident", 0, 2, 1, 1),
    Sketcher.Constraint("Coincident", 1, 2, 2, 1),
    Sketcher.Constraint("Coincident", 2, 2, 3, 1),
    Sketcher.Constraint("Coincident", 3, 2, 0, 1),
    Sketcher.Constraint("Vertical", 0),
    Sketcher.Constraint("Horizontal", 1),
    Sketcher.Constraint("Vertical", 2),
    Sketcher.Constraint("Horizontal", 3),
    Sketcher.Constraint("DistanceX", 1, 1, 1, 2, Q("10 mm")),
    Sketcher.Constraint("DistanceX", -1, 1, 0, 2, Q("15 mm")),
    Sketcher.Constraint("DistanceY", 0, 2, 0, 1, Q("12.713519 mm")),
    Sketcher.Constraint("DistanceY", 0, 2, -1, 1, Q("47.547892 mm")),
])
pocket5 = body.newObject("PartDesign::Pocket", "Pocket004")
pocket5.Profile = sketch12
pocket5.Length = 5
doc.recompute()

chamfer2 = body.newObject("PartDesign::Chamfer", "Chamfer001")
chamfer2.Base = (pocket5, edges_at(pocket5, [
    (46, 0.75, 2),
    (46, 0.75, -42),
    (-6, 0.75, -42),
    (20, 7, 2),
    (20, 7, -42),
    (-6, 0.75, 2),
]))
chamfer2.Size = 0.6
doc.recompute()

fillet = body.newObject("PartDesign::Fillet", "Fillet")
fillet.Base = (chamfer2, edges_at(chamfer2, [
    (6.88, 5, -1.636),
    (9.239, 3.55, 0.2),
    (34.239, 3.05, 0.2),
    (33.12, 5, -1.636),
    (33.12, 5, -38.364),
    (30.761, 3.55, -40.2),
    (6.88, 5, -38.364),
    (5.761, 3.05, -40.2),
    (34.239, 3.05, -40.2),
    (9.239, 3.55, -40.2),
    (30.761, 3.55, 0.2),
    (5.761, 3.05, 0.2),
    (-0.2, 2.25, -40.2),
    (-0.2, 2.25, 0.2),
    (40.2, 2.25, -40.2),
    (40.2, 2.25, 0.2),
]))
fillet.Radius = 1

sketch13 = body.newObject("Sketcher::SketchObject", "Sketch012")
sketch13.AttachmentSupport = (doc.getObject("XZ_Plane"), [""])
sketch13.MapMode = "FlatFace"
sketch13.addGeometry([
    Part.Circle(V(-0.2, -40.2, 0), V(0, 0, 1), 0.9),
    Part.Circle(V(-0.2, 0.2, 0), V(0, 0, 1), 0.9),
    Part.Circle(V(40.2, 0.2, 0), V(0, 0, 1), 0.9),
    Part.Circle(V(40.2, -40.2, 0), V(0, 0, 1), 0.9),
], False)
sketch13.addConstraint([
    Sketcher.Constraint("Equal", 0, 1),
    Sketcher.Constraint("Equal", 1, 2),
    Sketcher.Constraint("Equal", 2, 3),
    Sketcher.Constraint("Horizontal", 1, 3, 2, 3),
    Sketcher.Constraint("Horizontal", 0, 3, 3, 3),
    Sketcher.Constraint("Vertical", 0, 3, 1, 3),
    Sketcher.Constraint("Vertical", 2, 3, 3, 3),
    Sketcher.Constraint("Diameter", 0, Q("1.8 mm")),
    Sketcher.Constraint("DistanceX", 0, 3, -1, 1, Q("0.2 mm")),
    Sketcher.Constraint("DistanceY", 0, 3, -1, 1, Q("40.2 mm")),
    Sketcher.Constraint("DistanceY", -1, 1, 1, 3, Q("0.2 mm")),
    Sketcher.Constraint("DistanceX", -1, 1, 2, 3, Q("40.2 mm")),
])
pocket6 = body.newObject("PartDesign::Pocket", "Pocket005")
pocket6.Profile = sketch13
pocket6.Length = 1.6

doc.recompute()
